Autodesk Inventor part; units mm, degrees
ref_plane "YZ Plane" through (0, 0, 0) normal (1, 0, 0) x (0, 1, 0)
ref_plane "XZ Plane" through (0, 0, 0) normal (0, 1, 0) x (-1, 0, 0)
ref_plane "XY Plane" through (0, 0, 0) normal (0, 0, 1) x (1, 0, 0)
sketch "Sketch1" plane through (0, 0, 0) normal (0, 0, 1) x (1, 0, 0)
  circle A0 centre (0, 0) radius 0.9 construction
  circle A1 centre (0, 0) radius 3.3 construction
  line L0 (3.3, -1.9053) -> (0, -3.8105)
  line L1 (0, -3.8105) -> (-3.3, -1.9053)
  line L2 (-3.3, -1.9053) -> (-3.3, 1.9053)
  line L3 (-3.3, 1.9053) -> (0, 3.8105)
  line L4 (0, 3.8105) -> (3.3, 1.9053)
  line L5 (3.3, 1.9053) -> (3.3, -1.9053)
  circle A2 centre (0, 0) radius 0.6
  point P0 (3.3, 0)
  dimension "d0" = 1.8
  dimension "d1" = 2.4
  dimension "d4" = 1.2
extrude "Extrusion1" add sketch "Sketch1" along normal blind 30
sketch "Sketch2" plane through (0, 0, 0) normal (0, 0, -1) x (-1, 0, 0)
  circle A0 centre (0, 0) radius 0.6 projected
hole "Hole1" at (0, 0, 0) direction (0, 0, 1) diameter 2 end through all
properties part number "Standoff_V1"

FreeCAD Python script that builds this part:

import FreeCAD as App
import Part
import Sketcher
from FreeCAD import Vector
Q = App.Units.Quantity


def add_polygon(sketch, points):
    """Adds a closed chain of lines whose ends are joined by coincident constraints."""
    first, n = sketch.GeometryCount, len(points)
    for a, b in zip(points, points[1:] + points[:1]):
        sketch.addGeometry(Part.LineSegment(App.Vector(*a, 0), App.Vector(*b, 0)), False)
    for i in range(n):
        sketch.addConstraint(Sketcher.Constraint("Coincident", first + i, 2, first + (i + 1) % n, 1))

doc = App.newDocument("Part")
body = doc.addObject("PartDesign::Body", "Body")

sketch1 = body.newObject("Sketcher::SketchObject", "Sketch")
sketch1.AttachmentSupport = (doc.getObject("XY_Plane"), [""])
sketch1.MapMode = "FlatFace"
add_polygon(sketch1, [(0, -3.8), (3.3, -1.9), (3.3, 1.9), (0, 3.8), (-3.3, 1.9), (-3.3, -1.9)])
sketch1.addGeometry(Part.Circle(Vector(0, 0, 0), Vector(0, 0, 1), 0.6), False)
sketch1.addConstraint(Sketcher.Constraint("Vertical", 1))
sketch1.addConstraint(Sketcher.Constraint("Vertical", 4))
sketch1.addConstraint(Sketcher.Constraint("Coincident", 6, 3, -1, 1))
sketch1.addConstraint(Sketcher.Constraint("Symmetric", 0, 2, 3, 2, -1, 1))
sketch1.addConstraint(Sketcher.Constraint("Symmetric", 2, 2, 5, 2, -1, 1))
sketch1.addConstraint(Sketcher.Constraint("PointOnObject", 2, 2, -2))
sketch1.addConstraint(Sketcher.Constraint("Parallel", 2, 5))
sketch1.addConstraint(Sketcher.Constraint("Horizontal", 1, 2, 3, 2))
sketch1.addConstraint(Sketcher.Constraint("Diameter", 6, Q("1.2 mm")))
sketch1.addConstraint(Sketcher.Constraint("Angle", 0, Q("29.9993 deg")))
sketch1.addConstraint(Sketcher.Constraint("DistanceX", -1, 1, 0, 2, Q("3.3 mm")))
sketch1.addConstraint(Sketcher.Constraint("DistanceY", 1, 1, 1, 2, Q("3.8106 mm")))
pad1 = body.newObject("PartDesign::Pad", "Pad")
pad1.Profile = sketch1
pad1.Length = 30

sketch2 = body.newObject("Sketcher::SketchObject", "Sketch001")
sketch2.AttachmentSupport = (doc.getObject("XY_Plane"), [""])
sketch2.MapMode = "FlatFace"
sketch2.addGeometry(Part.Circle(Vector(0, 0, 0), Vector(0, 0, 1), 1), False)
sketch2.addConstraint(Sketcher.Constraint("Coincident", 0, 3, -1, 1))
sketch2.addConstraint(Sketcher.Constraint("Diameter", 0, Q("2 mm")))
doc.recompute()
hole = body.newObject("PartDesign::Hole", "Hole")
hole.Profile = sketch2
hole.ThreadType = "None"
hole.Diameter = 2
hole.DepthType = "ThroughAll"
hole.Reversed = True

doc.recompute()
